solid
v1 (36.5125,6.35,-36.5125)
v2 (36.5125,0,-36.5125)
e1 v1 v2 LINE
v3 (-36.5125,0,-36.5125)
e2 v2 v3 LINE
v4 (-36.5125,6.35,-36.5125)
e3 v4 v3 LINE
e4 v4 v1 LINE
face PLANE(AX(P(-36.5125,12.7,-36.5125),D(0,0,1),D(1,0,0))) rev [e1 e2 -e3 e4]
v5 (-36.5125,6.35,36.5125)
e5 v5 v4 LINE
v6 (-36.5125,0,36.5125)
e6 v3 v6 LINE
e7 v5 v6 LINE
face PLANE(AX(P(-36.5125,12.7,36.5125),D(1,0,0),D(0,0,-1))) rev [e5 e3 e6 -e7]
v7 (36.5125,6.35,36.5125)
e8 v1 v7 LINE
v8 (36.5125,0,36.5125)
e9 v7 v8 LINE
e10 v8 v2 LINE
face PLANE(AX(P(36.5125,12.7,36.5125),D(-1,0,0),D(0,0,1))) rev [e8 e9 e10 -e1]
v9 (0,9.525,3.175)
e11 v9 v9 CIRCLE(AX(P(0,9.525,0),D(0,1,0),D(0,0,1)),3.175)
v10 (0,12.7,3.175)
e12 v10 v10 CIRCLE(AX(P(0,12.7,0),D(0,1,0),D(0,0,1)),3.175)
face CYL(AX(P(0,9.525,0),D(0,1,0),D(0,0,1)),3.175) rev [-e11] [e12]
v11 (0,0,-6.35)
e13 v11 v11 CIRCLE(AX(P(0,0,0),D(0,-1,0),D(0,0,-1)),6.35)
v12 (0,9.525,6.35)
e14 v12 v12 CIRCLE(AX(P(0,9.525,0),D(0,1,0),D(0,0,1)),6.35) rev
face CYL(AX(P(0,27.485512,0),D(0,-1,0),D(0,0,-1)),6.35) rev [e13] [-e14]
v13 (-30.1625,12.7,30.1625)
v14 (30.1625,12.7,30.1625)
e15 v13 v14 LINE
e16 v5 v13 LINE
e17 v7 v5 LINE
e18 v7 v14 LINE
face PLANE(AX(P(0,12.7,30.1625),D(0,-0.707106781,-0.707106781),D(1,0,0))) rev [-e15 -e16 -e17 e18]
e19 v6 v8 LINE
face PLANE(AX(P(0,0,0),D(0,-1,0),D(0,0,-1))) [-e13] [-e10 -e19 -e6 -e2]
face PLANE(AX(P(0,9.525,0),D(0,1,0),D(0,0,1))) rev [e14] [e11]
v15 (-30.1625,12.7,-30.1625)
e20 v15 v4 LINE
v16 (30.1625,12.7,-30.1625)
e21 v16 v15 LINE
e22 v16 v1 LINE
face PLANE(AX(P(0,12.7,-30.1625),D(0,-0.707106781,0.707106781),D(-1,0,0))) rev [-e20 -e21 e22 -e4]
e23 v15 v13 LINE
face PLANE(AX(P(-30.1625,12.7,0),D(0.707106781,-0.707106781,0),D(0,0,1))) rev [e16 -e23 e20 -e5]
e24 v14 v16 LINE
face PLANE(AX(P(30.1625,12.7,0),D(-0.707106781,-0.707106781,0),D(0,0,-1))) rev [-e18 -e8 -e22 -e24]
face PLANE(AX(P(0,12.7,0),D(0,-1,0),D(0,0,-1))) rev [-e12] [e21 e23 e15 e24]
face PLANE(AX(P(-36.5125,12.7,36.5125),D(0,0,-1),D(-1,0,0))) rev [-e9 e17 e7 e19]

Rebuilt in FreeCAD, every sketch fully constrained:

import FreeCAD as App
import Part
import Sketcher
Q = App.Units.Quantity


def edges_at(feature, points):
    """Names of the edges that pass closest to the given points."""
    edges = feature.Shape.Edges
    near = lambda p: min(range(len(edges)), key=lambda i: edges[i].distToShape(Part.Vertex(*p))[0])
    return sorted({f"Edge{near(p) + 1}" for p in points})


def add_polygon(sketch, points):
    """Adds a closed chain of lines whose ends are joined by coincident constraints."""
    first, n = sketch.GeometryCount, len(points)
    for a, b in zip(points, points[1:] + points[:1]):
        sketch.addGeometry(Part.LineSegment(App.Vector(*a, 0), App.Vector(*b, 0)), False)
    for i in range(n):
        sketch.addConstraint(Sketcher.Constraint("Coincident", first + i, 2, first + (i + 1) % n, 1))

doc = App.newDocument("Part")
body = doc.addObject("PartDesign::Body", "Body")

# Sketch on XZ plane
sketch1 = body.newObject("Sketcher::SketchObject", "Sketch")
sketch1.AttachmentSupport = (doc.getObject("XZ_Plane"), [""])
sketch1.MapMode = "FlatFace"
add_polygon(sketch1, [(-36.5125, -36.5125), (-36.5125, 36.5125), (36.5125, 36.5125), (36.5125, -36.5125)])  # lines 0-3
sketch1.addConstraint(Sketcher.Constraint("Vertical", 0))
sketch1.addConstraint(Sketcher.Constraint("Horizontal", 1))
sketch1.addConstraint(Sketcher.Constraint("Vertical", 2))
sketch1.addConstraint(Sketcher.Constraint("Horizontal", 3))
sketch1.addConstraint(Sketcher.Constraint("Symmetric", 0, 2, 2, 2, -1, 1))
sketch1.addConstraint(Sketcher.Constraint("Equal", 3, 0))
sketch1.addConstraint(Sketcher.Constraint("DistanceX", 1, 1, 1, 2, Q("2.875 in")))
pad1 = body.newObject("PartDesign::Pad", "Pad")
pad1.Profile = sketch1
pad1.Length = Q("0.5 in")
pad1.Reversed = True
doc.recompute()

chamfer = body.newObject("PartDesign::Chamfer", "Chamfer")
chamfer.Base = (pad1, edges_at(pad1, [
    (-36.513, 12.7, 0),
    (0, 12.7, 36.513),
    (36.513, 12.7, 0),
    (0, 12.7, -36.513),
]))
chamfer.Size = Q("0.25 in")

# Sketch on XZ plane
sketch2 = body.newObject("Sketcher::SketchObject", "Sketch001")
sketch2.AttachmentSupport = (doc.getObject("XZ_Plane"), [""])
sketch2.MapMode = "FlatFace"
sketch2.AttachmentOffset = App.Placement(App.Vector(0, 0, -0.5 * 25.4), App.Rotation())
sketch2.addGeometry(Part.Circle(App.Vector(0, 0, 0), App.Vector(0, 0, 1), 3.175), False)
sketch2.addConstraint(Sketcher.Constraint("Coincident", 0, 3, -1, 1))
sketch2.addConstraint(Sketcher.Constraint("Diameter", 0, Q("0.25 in")))
pocket1 = body.newObject("PartDesign::Pocket", "Pocket")
pocket1.Profile = sketch2
pocket1.Length = Q("0.125 in")
pocket1.Reversed = True

# Sketch on XZ plane
sketch3 = body.newObject("Sketcher::SketchObject", "Sketch002")
sketch3.AttachmentSupport = (doc.getObject("XZ_Plane"), [""])
sketch3.MapMode = "FlatFace"
sketch3.addGeometry(Part.Circle(App.Vector(0, 0, 0), App.Vector(0, 0, 1), 6.35), False)
sketch3.addConstraint(Sketcher.Constraint("Coincident", 0, 3, -1, 1))
sketch3.addConstraint(Sketcher.Constraint("Diameter", 0, Q("0.5 in")))
pocket2 = body.newObject("PartDesign::Pocket", "Pocket001")
pocket2.Profile = sketch3
pocket2.Length = Q("0.375 in")

doc.recompute()
